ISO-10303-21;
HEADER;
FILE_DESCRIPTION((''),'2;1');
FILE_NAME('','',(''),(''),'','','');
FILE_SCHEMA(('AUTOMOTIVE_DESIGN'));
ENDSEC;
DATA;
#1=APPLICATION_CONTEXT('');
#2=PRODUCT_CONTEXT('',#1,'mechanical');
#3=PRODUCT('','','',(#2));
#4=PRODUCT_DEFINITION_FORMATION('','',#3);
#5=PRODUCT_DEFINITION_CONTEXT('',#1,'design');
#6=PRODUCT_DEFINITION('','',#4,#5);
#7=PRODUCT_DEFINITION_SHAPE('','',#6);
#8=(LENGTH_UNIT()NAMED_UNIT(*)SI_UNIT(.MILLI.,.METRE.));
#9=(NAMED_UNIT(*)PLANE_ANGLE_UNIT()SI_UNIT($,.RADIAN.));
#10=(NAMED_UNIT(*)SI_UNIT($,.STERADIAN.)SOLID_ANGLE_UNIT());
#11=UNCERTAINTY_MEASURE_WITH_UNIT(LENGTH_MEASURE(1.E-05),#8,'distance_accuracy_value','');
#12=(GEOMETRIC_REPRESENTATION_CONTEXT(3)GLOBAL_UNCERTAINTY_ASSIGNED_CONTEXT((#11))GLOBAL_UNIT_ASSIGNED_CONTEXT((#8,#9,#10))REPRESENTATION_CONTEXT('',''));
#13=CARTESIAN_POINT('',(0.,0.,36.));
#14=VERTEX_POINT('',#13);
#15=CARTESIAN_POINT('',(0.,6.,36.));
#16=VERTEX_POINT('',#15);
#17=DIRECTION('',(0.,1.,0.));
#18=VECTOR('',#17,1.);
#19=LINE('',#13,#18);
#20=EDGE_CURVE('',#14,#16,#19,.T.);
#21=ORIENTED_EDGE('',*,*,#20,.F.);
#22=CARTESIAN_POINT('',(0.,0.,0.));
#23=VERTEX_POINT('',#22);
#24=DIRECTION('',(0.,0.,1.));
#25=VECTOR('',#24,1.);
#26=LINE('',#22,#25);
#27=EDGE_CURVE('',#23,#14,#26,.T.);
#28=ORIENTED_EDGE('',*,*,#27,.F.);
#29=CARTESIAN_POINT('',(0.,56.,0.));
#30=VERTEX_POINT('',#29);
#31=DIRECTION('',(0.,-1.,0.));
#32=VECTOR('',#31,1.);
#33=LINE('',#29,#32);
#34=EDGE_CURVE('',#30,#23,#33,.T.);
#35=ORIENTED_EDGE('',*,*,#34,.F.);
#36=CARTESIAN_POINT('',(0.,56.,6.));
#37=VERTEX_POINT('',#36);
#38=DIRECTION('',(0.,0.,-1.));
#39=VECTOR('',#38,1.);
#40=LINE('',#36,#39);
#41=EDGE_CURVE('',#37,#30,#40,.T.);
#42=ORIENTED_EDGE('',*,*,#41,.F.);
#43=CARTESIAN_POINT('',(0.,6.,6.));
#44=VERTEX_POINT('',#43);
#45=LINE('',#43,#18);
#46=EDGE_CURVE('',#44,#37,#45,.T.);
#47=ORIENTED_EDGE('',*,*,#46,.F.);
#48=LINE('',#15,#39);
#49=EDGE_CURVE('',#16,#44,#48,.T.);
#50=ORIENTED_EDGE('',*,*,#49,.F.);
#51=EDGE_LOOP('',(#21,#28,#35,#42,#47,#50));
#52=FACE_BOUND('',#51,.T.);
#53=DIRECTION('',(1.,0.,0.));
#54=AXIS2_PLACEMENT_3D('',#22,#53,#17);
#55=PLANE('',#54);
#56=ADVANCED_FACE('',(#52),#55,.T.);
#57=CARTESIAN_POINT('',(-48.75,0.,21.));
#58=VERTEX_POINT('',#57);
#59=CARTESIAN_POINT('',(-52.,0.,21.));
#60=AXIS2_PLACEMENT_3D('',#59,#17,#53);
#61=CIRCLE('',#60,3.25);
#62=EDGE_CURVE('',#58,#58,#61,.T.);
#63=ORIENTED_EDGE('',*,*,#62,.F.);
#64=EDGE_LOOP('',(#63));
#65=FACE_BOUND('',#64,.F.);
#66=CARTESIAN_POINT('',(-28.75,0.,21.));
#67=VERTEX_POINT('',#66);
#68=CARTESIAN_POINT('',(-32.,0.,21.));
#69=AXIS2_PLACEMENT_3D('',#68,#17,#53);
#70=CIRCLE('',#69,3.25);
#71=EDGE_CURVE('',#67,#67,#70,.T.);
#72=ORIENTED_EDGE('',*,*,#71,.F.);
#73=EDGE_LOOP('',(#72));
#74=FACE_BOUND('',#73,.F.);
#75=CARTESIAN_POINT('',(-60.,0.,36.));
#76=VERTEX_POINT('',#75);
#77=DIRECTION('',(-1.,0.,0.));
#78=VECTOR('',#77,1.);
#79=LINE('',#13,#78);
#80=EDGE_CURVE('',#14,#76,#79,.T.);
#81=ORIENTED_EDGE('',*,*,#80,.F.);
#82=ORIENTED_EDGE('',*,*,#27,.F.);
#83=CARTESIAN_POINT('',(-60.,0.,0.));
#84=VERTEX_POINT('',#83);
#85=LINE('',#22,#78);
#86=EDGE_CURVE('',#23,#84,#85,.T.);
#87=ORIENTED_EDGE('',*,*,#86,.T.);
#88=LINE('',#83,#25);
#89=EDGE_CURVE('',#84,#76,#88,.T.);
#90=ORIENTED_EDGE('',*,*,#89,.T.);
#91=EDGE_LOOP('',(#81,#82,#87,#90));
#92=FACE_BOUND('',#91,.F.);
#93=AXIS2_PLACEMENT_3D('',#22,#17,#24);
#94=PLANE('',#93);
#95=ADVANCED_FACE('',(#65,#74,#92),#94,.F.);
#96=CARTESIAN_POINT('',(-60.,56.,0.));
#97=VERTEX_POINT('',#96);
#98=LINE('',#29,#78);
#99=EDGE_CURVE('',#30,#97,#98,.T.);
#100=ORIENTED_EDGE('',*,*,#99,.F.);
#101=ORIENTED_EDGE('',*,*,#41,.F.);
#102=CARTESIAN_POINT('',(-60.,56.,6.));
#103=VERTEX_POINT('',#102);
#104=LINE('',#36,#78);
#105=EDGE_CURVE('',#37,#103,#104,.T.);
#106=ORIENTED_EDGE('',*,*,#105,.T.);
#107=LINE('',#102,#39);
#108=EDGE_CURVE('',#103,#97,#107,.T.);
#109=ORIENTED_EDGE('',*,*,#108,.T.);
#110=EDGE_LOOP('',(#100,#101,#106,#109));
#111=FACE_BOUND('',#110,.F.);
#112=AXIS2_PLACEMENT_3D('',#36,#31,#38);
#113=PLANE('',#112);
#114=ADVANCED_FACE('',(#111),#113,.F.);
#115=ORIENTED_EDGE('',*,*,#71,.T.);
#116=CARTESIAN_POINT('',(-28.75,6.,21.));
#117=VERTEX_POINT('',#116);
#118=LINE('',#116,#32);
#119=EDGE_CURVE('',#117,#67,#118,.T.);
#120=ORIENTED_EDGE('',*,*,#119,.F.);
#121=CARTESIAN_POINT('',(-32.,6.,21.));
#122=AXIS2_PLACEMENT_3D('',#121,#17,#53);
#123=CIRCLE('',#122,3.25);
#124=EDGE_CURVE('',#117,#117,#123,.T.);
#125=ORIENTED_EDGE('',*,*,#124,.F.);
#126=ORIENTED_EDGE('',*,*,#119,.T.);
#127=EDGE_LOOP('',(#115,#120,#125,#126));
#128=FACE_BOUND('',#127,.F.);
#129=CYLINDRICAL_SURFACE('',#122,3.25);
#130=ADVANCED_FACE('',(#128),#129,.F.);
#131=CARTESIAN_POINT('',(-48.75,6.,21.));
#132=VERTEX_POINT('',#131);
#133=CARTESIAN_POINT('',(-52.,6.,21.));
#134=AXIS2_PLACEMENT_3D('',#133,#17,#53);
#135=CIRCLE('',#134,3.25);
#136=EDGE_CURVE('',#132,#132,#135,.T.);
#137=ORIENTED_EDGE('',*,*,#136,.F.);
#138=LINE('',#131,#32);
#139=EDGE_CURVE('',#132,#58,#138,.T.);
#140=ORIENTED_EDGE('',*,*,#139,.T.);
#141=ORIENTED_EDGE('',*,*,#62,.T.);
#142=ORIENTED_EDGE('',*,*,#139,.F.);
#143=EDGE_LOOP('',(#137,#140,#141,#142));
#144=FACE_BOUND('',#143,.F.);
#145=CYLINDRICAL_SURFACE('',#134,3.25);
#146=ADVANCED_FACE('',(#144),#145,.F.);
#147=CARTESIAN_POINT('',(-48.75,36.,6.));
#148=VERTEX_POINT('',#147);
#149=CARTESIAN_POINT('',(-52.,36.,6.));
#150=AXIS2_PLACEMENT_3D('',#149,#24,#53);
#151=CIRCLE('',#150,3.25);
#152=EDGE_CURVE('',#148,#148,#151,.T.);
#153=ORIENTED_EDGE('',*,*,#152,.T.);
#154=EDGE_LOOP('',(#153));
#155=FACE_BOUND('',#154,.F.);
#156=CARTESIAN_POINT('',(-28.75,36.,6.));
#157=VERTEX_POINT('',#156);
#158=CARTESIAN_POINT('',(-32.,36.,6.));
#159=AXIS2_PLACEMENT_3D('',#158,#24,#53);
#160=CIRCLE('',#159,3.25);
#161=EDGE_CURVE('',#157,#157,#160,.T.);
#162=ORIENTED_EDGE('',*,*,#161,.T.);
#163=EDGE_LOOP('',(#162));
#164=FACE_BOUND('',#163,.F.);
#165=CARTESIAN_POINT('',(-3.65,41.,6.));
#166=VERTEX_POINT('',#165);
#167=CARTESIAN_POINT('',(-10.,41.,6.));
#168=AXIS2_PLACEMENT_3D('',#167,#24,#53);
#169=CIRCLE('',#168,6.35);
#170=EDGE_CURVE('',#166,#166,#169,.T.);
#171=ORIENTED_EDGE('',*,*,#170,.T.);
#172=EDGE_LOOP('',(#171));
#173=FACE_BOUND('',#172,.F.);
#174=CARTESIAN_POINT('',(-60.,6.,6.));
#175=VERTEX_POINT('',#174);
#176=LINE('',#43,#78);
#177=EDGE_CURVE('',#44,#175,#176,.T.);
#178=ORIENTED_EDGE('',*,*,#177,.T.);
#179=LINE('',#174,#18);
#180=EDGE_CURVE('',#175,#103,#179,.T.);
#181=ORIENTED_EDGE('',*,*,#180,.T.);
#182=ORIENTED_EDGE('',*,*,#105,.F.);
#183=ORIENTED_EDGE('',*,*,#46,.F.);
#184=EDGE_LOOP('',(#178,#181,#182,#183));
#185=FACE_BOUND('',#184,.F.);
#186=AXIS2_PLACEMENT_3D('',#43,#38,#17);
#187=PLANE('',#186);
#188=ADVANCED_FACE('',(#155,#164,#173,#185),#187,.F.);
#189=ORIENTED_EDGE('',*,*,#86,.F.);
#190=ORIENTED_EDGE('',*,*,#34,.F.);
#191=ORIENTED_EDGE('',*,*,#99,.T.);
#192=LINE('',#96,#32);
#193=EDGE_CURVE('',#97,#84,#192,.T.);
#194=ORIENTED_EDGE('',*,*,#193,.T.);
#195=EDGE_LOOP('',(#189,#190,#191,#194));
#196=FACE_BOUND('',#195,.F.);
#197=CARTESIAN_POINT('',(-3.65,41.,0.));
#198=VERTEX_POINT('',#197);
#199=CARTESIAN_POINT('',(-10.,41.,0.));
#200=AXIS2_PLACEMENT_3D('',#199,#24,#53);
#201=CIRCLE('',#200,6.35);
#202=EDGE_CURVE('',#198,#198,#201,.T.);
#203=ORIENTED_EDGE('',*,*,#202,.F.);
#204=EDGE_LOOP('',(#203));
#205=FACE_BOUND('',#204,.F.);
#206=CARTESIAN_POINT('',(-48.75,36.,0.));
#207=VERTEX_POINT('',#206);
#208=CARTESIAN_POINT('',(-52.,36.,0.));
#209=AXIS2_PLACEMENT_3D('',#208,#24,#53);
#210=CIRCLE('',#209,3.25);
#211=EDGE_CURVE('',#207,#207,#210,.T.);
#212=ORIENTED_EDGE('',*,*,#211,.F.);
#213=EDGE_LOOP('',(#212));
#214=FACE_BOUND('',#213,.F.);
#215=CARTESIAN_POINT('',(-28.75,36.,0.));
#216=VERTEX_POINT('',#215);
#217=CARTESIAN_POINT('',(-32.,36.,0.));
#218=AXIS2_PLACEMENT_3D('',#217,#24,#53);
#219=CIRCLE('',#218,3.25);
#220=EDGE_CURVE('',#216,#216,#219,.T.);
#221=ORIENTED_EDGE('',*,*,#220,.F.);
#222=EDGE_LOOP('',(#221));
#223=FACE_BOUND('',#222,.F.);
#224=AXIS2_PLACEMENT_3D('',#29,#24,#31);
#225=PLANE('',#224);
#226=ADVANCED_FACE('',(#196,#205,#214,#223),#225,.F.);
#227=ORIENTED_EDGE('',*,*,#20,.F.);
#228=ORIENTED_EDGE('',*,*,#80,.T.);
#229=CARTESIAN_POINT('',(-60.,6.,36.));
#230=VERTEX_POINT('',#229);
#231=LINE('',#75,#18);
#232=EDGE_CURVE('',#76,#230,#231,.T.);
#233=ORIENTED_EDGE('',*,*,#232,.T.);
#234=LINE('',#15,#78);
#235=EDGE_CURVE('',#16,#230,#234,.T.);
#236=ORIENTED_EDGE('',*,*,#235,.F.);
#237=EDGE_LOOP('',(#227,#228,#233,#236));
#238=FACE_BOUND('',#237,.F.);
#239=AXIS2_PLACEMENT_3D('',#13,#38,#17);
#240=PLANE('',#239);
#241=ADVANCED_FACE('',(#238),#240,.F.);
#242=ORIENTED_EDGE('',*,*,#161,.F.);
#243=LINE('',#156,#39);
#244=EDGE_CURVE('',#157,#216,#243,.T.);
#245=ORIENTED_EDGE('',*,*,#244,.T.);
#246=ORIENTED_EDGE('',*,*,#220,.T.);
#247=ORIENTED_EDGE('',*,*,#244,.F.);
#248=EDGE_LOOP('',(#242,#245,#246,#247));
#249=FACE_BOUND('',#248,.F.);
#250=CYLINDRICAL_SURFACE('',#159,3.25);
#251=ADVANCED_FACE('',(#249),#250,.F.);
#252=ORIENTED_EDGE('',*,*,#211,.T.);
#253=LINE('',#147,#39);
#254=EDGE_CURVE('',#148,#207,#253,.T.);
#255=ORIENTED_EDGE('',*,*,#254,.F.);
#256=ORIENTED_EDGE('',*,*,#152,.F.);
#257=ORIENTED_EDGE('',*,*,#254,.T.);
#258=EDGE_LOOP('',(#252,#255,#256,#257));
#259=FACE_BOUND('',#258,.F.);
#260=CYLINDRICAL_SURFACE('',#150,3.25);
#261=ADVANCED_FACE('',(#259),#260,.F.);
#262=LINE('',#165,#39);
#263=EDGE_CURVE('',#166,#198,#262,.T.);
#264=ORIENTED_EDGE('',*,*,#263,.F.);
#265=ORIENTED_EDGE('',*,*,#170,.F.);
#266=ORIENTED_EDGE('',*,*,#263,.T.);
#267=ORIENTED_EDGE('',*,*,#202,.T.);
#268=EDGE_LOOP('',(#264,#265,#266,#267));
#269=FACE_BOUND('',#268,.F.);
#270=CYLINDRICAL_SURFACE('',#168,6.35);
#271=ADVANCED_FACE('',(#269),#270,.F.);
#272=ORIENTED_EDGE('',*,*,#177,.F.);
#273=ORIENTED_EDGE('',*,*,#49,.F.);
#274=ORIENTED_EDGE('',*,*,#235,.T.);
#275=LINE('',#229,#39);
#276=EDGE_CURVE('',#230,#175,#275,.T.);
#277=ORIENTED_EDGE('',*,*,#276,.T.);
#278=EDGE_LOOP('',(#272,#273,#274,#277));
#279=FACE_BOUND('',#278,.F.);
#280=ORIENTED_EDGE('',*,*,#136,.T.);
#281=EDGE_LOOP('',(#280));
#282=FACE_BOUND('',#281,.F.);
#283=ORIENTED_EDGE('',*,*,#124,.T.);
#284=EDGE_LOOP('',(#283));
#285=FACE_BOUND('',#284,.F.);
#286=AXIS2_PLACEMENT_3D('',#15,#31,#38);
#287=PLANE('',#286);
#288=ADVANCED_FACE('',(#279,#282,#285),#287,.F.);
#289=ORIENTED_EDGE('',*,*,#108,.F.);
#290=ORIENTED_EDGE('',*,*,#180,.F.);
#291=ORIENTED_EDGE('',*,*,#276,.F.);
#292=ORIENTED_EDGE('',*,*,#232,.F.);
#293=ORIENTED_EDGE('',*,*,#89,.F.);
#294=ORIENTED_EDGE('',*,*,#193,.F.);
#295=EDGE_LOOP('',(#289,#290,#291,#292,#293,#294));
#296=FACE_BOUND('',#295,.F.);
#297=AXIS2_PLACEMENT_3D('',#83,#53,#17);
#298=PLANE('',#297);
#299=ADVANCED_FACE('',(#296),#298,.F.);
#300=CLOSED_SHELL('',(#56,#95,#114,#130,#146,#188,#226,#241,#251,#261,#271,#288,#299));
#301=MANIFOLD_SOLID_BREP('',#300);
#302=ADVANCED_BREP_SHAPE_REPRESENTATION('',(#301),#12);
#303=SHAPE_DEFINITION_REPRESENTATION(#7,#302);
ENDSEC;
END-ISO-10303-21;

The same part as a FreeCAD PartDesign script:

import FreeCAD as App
import Part
import Sketcher
Q = App.Units.Quantity

doc = App.newDocument("Part")
body = doc.addObject("PartDesign::Body", "Body")

# Sketch on YZ plane
sketch1 = body.newObject("Sketcher::SketchObject", "Sketch")
sketch1.AttachmentSupport = (doc.getObject("YZ_Plane"), [""])
sketch1.MapMode = "FlatFace"
sketch1.addGeometry([
    Part.LineSegment(App.Vector(0, 36, 0), App.Vector(0, 0, 0)),  # 0
    Part.LineSegment(App.Vector(0, 0, 0), App.Vector(56, 0, 0)),  # 1
    Part.LineSegment(App.Vector(56, 0, 0), App.Vector(56, 6, 0)),  # 2
    Part.LineSegment(App.Vector(56, 6, 0), App.Vector(6, 6, 0)),  # 3
    Part.LineSegment(App.Vector(6, 6, 0), App.Vector(6, 36, 0)),  # 4
    Part.LineSegment(App.Vector(6, 36, 0), App.Vector(0, 36, 0)),  # 5
], False)
sketch1.addConstraint([
    Sketcher.Constraint("Coincident", 0, 2, 1, 1),
    Sketcher.Constraint("Coincident", 1, 2, 2, 1),
    Sketcher.Constraint("Coincident", 2, 2, 3, 1),
    Sketcher.Constraint("Coincident", 3, 2, 4, 1),
    Sketcher.Constraint("Coincident", 4, 2, 5, 1),
    Sketcher.Constraint("Coincident", 5, 2, 0, 1),
    Sketcher.Constraint("Vertical", 0),
    Sketcher.Constraint("Horizontal", 1),
    Sketcher.Constraint("Vertical", 2),
    Sketcher.Constraint("Horizontal", 3),
    Sketcher.Constraint("Vertical", 4),
    Sketcher.Constraint("Horizontal", 5),
    Sketcher.Constraint("Coincident", 0, 2, -1, 1),
    Sketcher.Constraint("Equal", 5, 2),
    Sketcher.Constraint("DistanceX", 1, 1, 1, 2, Q("56 mm")),
    Sketcher.Constraint("DistanceX", 3, 2, 3, 1, Q("50 mm")),
    Sketcher.Constraint("DistanceY", 0, 2, 0, 1, Q("36 mm")),
])
pad1 = body.newObject("PartDesign::Pad", "Pad")
pad1.Profile = sketch1
pad1.Length = 60
pad1.Reversed = True

# Sketch on XY plane
sketch2 = body.newObject("Sketcher::SketchObject", "Sketch001")
sketch2.AttachmentSupport = (doc.getObject("XY_Plane"), [""])
sketch2.MapMode = "FlatFace"
sketch2.AttachmentOffset = App.Placement(App.Vector(0, 0, 6), App.Rotation())
sketch2.addGeometry([
    Part.Circle(App.Vector(-52, 36, 0), App.Vector(0, 0, 1), 3.2),
    Part.Circle(App.Vector(-32, 36, 0), App.Vector(0, 0, 1), 3.2),
], False)
sketch2.addConstraint([
    Sketcher.Constraint("Equal", 0, 1),
    Sketcher.Constraint("Horizontal", 0, 3, 1, 3),
    Sketcher.Constraint("Diameter", 0, Q("6.5 mm")),
    Sketcher.Constraint("DistanceX", 0, 3, 1, 3, Q("20 mm")),
    Sketcher.Constraint("DistanceX", 0, 3, -1, 1, Q("52 mm")),
    Sketcher.Constraint("DistanceY", -1, 1, 0, 3, Q("36 mm")),
])
pocket1 = body.newObject("PartDesign::Pocket", "Pocket")
pocket1.Profile = sketch2
pocket1.Length = 6

# Sketch on XZ plane
sketch3 = body.newObject("Sketcher::SketchObject", "Sketch002")
sketch3.AttachmentSupport = (doc.getObject("XZ_Plane"), [""])
sketch3.MapMode = "FlatFace"
sketch3.AttachmentOffset = App.Placement(App.Vector(0, 0, -6), App.Rotation())
sketch3.addGeometry([
    Part.Circle(App.Vector(-52, 21, 0), App.Vector(0, 0, 1), 3.2),
    Part.Circle(App.Vector(-32, 21, 0), App.Vector(0, 0, 1), 3.2),
], False)
sketch3.addConstraint([
    Sketcher.Constraint("Equal", 0, 1),
    Sketcher.Constraint("Horizontal", 0, 3, 1, 3),
    Sketcher.Constraint("Diameter", 0, Q("6.5 mm")),
    Sketcher.Constraint("DistanceX", 1, 3, -1, 1, Q("32 mm")),
    Sketcher.Constraint("DistanceX", 0, 3, 1, 3, Q("20 mm")),
    Sketcher.Constraint("DistanceY", -1, 1, 0, 3, Q("21 mm")),
])
pocket2 = body.newObject("PartDesign::Pocket", "Pocket001")
pocket2.Profile = sketch3
pocket2.Length = 6
pocket2.Reversed = True

# Sketch on XY plane
sketch4 = body.newObject("Sketcher::SketchObject", "Sketch003")
sketch4.AttachmentSupport = (doc.getObject("XY_Plane"), [""])
sketch4.MapMode = "FlatFace"
sketch4.AttachmentOffset = App.Placement(App.Vector(0, 0, 6), App.Rotation())
sketch4.addGeometry(Part.Circle(App.Vector(-10, 41, 0), App.Vector(0, 0, 1), 6), False)
sketch4.addConstraint([
    Sketcher.Constraint("Diameter", 0, Q("12.7 mm")),
    Sketcher.Constraint("DistanceX", 0, 3, -1, 1, Q("10 mm")),
    Sketcher.Constraint("DistanceY", -1, 1, 0, 3, Q("41 mm")),
])
pocket3 = body.newObject("PartDesign::Pocket", "Pocket002")
pocket3.Profile = sketch4
pocket3.Length = 6

doc.recompute()
